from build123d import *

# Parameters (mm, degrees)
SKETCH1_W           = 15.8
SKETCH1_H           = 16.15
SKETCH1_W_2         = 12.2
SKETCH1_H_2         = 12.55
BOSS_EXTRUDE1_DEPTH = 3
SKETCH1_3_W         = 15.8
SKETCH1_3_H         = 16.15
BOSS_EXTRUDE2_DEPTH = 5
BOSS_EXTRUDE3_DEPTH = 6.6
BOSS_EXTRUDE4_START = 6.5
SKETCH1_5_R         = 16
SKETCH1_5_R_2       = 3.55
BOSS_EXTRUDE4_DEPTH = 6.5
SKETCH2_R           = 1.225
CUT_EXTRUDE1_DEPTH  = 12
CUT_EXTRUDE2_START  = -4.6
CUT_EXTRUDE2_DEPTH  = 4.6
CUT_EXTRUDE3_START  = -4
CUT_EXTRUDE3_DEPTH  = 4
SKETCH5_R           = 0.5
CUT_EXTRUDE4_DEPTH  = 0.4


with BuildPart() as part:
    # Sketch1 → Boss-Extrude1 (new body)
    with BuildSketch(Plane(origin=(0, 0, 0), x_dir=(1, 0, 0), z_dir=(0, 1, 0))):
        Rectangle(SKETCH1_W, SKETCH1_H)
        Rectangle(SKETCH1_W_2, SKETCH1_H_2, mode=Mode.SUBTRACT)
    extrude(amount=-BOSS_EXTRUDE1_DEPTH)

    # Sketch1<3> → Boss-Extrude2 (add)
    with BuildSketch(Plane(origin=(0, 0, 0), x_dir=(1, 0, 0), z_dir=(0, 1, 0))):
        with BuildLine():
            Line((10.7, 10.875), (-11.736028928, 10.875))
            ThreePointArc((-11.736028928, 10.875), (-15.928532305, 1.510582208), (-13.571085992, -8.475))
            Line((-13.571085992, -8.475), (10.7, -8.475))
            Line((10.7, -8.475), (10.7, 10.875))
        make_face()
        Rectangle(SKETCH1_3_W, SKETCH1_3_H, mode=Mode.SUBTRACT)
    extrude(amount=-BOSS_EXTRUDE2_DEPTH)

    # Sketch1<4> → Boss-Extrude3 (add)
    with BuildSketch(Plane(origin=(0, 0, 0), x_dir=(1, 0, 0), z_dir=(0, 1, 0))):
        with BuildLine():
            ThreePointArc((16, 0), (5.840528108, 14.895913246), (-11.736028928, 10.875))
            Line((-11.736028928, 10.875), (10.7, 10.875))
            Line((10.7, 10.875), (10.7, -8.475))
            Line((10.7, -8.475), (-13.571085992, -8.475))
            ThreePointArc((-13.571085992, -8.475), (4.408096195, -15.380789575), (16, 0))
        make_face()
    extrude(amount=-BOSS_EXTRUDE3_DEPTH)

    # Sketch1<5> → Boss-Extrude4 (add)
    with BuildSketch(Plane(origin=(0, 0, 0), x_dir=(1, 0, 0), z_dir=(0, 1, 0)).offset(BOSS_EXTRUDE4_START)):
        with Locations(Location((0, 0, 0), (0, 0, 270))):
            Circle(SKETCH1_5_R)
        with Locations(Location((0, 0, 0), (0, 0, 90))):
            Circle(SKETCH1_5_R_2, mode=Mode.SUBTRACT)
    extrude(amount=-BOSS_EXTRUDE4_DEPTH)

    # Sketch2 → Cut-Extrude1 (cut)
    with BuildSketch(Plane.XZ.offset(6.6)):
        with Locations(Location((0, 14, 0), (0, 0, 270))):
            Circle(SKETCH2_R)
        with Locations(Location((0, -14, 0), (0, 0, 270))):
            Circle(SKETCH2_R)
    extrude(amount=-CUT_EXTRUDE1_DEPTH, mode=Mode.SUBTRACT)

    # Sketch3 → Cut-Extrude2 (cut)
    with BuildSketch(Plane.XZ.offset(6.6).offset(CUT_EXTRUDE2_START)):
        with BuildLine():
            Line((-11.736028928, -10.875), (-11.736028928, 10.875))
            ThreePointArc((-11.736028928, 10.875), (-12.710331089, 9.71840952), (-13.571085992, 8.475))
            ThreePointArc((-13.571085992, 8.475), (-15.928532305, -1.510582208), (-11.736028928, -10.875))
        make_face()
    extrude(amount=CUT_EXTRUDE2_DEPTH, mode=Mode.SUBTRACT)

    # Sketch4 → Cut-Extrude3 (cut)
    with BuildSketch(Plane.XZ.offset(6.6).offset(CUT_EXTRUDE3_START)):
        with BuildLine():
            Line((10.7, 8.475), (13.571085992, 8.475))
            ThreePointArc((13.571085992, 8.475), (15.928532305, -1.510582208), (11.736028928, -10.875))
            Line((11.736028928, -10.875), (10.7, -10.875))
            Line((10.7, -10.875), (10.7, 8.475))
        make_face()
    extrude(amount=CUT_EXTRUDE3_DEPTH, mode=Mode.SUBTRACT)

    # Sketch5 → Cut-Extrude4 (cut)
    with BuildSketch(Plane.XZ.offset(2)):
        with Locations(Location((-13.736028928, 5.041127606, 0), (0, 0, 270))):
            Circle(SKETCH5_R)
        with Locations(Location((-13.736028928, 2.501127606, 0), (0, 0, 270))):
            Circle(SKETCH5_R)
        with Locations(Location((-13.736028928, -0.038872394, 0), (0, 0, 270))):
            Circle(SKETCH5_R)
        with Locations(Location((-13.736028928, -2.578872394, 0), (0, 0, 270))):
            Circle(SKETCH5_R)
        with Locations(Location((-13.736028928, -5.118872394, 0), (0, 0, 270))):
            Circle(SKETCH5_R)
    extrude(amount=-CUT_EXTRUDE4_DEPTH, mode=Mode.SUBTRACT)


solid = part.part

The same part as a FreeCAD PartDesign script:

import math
import FreeCAD as App
import Part
import Sketcher
Q = App.Units.Quantity

doc = App.newDocument("Part")
body = doc.addObject("PartDesign::Body", "Body")

# Sketch on XZ plane
sketch1 = body.newObject("Sketcher::SketchObject", "Sketch")
sketch1.AttachmentSupport = (doc.getObject("XZ_Plane"), [""])
sketch1.MapMode = "FlatFace"
sketch1.addGeometry(Part.LineSegment(App.Vector(-8, -8, 0), App.Vector(-8, 8, 0)), False)
sketch1.addGeometry(Part.LineSegment(App.Vector(-8, 8, 0), App.Vector(8, 8, 0)), False)
sketch1.addGeometry(Part.LineSegment(App.Vector(8, 8, 0), App.Vector(8, -8, 0)), False)
sketch1.addGeometry(Part.LineSegment(App.Vector(8, -8, 0), App.Vector(-8, -8, 0)), False)
sketch1.addGeometry(Part.LineSegment(App.Vector(6, 6, 0), App.Vector(-6, 6, 0)), False)
sketch1.addGeometry(Part.LineSegment(App.Vector(-6, 6, 0), App.Vector(-6, -6, 0)), False)
sketch1.addGeometry(Part.LineSegment(App.Vector(-6, -6, 0), App.Vector(6, -6, 0)), False)
sketch1.addGeometry(Part.LineSegment(App.Vector(6, -6, 0), App.Vector(6, 6, 0)), False)
sketch1.addConstraint(Sketcher.Constraint("Coincident", 0, 2, 1, 1))
sketch1.addConstraint(Sketcher.Constraint("Coincident", 1, 2, 2, 1))
sketch1.addConstraint(Sketcher.Constraint("Coincident", 2, 2, 3, 1))
sketch1.addConstraint(Sketcher.Constraint("Coincident", 3, 2, 0, 1))
sketch1.addConstraint(Sketcher.Constraint("Coincident", 4, 2, 5, 1))
sketch1.addConstraint(Sketcher.Constraint("Coincident", 5, 2, 6, 1))
sketch1.addConstraint(Sketcher.Constraint("Coincident", 6, 2, 7, 1))
sketch1.addConstraint(Sketcher.Constraint("Coincident", 7, 2, 4, 1))
sketch1.addConstraint(Sketcher.Constraint("Vertical", 0))
sketch1.addConstraint(Sketcher.Constraint("Horizontal", 1))
sketch1.addConstraint(Sketcher.Constraint("Vertical", 2))
sketch1.addConstraint(Sketcher.Constraint("Horizontal", 3))
sketch1.addConstraint(Sketcher.Constraint("Horizontal", 4))
sketch1.addConstraint(Sketcher.Constraint("Vertical", 5))
sketch1.addConstraint(Sketcher.Constraint("Horizontal", 6))
sketch1.addConstraint(Sketcher.Constraint("Vertical", 7))
sketch1.addConstraint(Sketcher.Constraint("Symmetric", 0, 2, 2, 2, -1, 1))
sketch1.addConstraint(Sketcher.Constraint("Symmetric", 4, 2, 6, 2, -1, 1))
sketch1.addConstraint(Sketcher.Constraint("DistanceX", 1, 1, 1, 2, Q("15.8 mm")))
sketch1.addConstraint(Sketcher.Constraint("DistanceX", 4, 2, 4, 1, Q("12.2 mm")))
sketch1.addConstraint(Sketcher.Constraint("DistanceY", 0, 1, 0, 2, Q("16.15 mm")))
sketch1.addConstraint(Sketcher.Constraint("DistanceY", 5, 2, 5, 1, Q("12.55 mm")))
pad1 = body.newObject("PartDesign::Pad", "Pad")
pad1.Profile = sketch1
pad1.Length = 3

# Sketch on XZ plane
sketch2 = body.newObject("Sketcher::SketchObject", "Sketch001")
sketch2.AttachmentSupport = (doc.getObject("XZ_Plane"), [""])
sketch2.MapMode = "FlatFace"
sketch2.addGeometry(Part.LineSegment(App.Vector(11, -11, 0), App.Vector(-12, -11, 0)), False)
sketch2.addGeometry(Part.ArcOfCircle(Part.Circle(App.Vector(0, 0, 0), App.Vector(0, 0, 1), 16), math.radians(148), math.radians(223)), False)
sketch2.addGeometry(Part.LineSegment(App.Vector(-14, 8, 0), App.Vector(11, 8, 0)), False)
sketch2.addGeometry(Part.LineSegment(App.Vector(11, 8, 0), App.Vector(11, -11, 0)), False)
sketch2.addGeometry(Part.LineSegment(App.Vector(8, 8, 0), App.Vector(-8, 8, 0)), False)
sketch2.addGeometry(Part.LineSegment(App.Vector(-8, 8, 0), App.Vector(-8, -8, 0)), False)
sketch2.addGeometry(Part.LineSegment(App.Vector(-8, -8, 0), App.Vector(8, -8, 0)), False)
sketch2.addGeometry(Part.LineSegment(App.Vector(8, -8, 0), App.Vector(8, 8, 0)), False)
sketch2.addConstraint(Sketcher.Constraint("Coincident", 0, 2, 1, 2))
sketch2.addConstraint(Sketcher.Constraint("Coincident", 1, 1, 2, 1))
sketch2.addConstraint(Sketcher.Constraint("Coincident", 2, 2, 3, 1))
sketch2.addConstraint(Sketcher.Constraint("Coincident", 3, 2, 0, 1))
sketch2.addConstraint(Sketcher.Constraint("Coincident", 4, 2, 5, 1))
sketch2.addConstraint(Sketcher.Constraint("Coincident", 5, 2, 6, 1))
sketch2.addConstraint(Sketcher.Constraint("Coincident", 6, 2, 7, 1))
sketch2.addConstraint(Sketcher.Constraint("Coincident", 7, 2, 4, 1))
sketch2.addConstraint(Sketcher.Constraint("Horizontal", 0))
sketch2.addConstraint(Sketcher.Constraint("Horizontal", 2))
sketch2.addConstraint(Sketcher.Constraint("Vertical", 3))
sketch2.addConstraint(Sketcher.Constraint("Horizontal", 4))
sketch2.addConstraint(Sketcher.Constraint("Vertical", 5))
sketch2.addConstraint(Sketcher.Constraint("Horizontal", 6))
sketch2.addConstraint(Sketcher.Constraint("Vertical", 7))
sketch2.addConstraint(Sketcher.Constraint("Coincident", 1, 3, -1, 1))
sketch2.addConstraint(Sketcher.Constraint("Symmetric", 4, 2, 6, 2, -1, 1))
sketch2.addConstraint(Sketcher.Constraint("Radius", 1, Q("16 mm")))
sketch2.addConstraint(Sketcher.Constraint("DistanceX", 4, 2, 4, 1, Q("15.8 mm")))
sketch2.addConstraint(Sketcher.Constraint("DistanceY", 3, 2, 3, 1, Q("19.35 mm")))
sketch2.addConstraint(Sketcher.Constraint("DistanceY", 5, 2, 5, 1, Q("16.15 mm")))
sketch2.addConstraint(Sketcher.Constraint("DistanceX", -1, 1, 2, 2, Q("10.7 mm")))
sketch2.addConstraint(Sketcher.Constraint("DistanceY", 4, 2, 1, 1, Q("0.4 mm")))
pad2 = body.newObject("PartDesign::Pad", "Pad001")
pad2.Profile = sketch2
pad2.Length = 5

# Sketch on XZ plane
sketch3 = body.newObject("Sketcher::SketchObject", "Sketch002")
sketch3.AttachmentSupport = (doc.getObject("XZ_Plane"), [""])
sketch3.MapMode = "FlatFace"
sketch3.addGeometry(Part.ArcOfCircle(Part.Circle(App.Vector(0, 0, 0), App.Vector(0, 0, 1), 16), math.radians(-137), math.radians(0)), False)
sketch3.addGeometry(Part.LineSegment(App.Vector(-12, -11, 0), App.Vector(11, -11, 0)), False)
sketch3.addGeometry(Part.LineSegment(App.Vector(11, -11, 0), App.Vector(11, 8, 0)), False)
sketch3.addGeometry(Part.LineSegment(App.Vector(11, 8, 0), App.Vector(-14, 8, 0)), False)
sketch3.addGeometry(Part.ArcOfCircle(Part.Circle(App.Vector(0, 0, 0), App.Vector(0, 0, 1), 16), math.radians(0), math.radians(148)), False)
sketch3.addConstraint(Sketcher.Constraint("Coincident", 0, 1, 1, 1))
sketch3.addConstraint(Sketcher.Constraint("Coincident", 1, 2, 2, 1))
sketch3.addConstraint(Sketcher.Constraint("Coincident", 2, 2, 3, 1))
sketch3.addConstraint(Sketcher.Constraint("Coincident", 3, 2, 4, 2))
sketch3.addConstraint(Sketcher.Constraint("Tangent", 4, 1, 0, 2))
sketch3.addConstraint(Sketcher.Constraint("Horizontal", 1))
sketch3.addConstraint(Sketcher.Constraint("Vertical", 2))
sketch3.addConstraint(Sketcher.Constraint("Horizontal", 3))
sketch3.addConstraint(Sketcher.Constraint("Coincident", 0, 3, -1, 1))
sketch3.addConstraint(Sketcher.Constraint("Equal", 0, 4))
sketch3.addConstraint(Sketcher.Constraint("PointOnObject", 4, 1, -1))
sketch3.addConstraint(Sketcher.Constraint("Radius", 0, Q("16 mm")))
sketch3.addConstraint(Sketcher.Constraint("DistanceY", 2, 1, 2, 2, Q("19.35 mm")))
sketch3.addConstraint(Sketcher.Constraint("DistanceX", -1, 1, 1, 2, Q("10.7 mm")))
sketch3.addConstraint(Sketcher.Constraint("DistanceY", 0, 1, -1, 1, Q("10.875 mm")))
pad3 = body.newObject("PartDesign::Pad", "Pad002")
pad3.Profile = sketch3
pad3.Length = 6.6

# Sketch on XZ plane
sketch4 = body.newObject("Sketcher::SketchObject", "Sketch003")
sketch4.AttachmentSupport = (doc.getObject("XZ_Plane"), [""])
sketch4.MapMode = "FlatFace"
sketch4.AttachmentOffset = App.Placement(App.Vector(0, 0, -6.5), App.Rotation())
sketch4.addGeometry(Part.Circle(App.Vector(0, 0, 0), App.Vector(0, 0, 1), 16), False)
sketch4.addGeometry(Part.Circle(App.Vector(0, 0, 0), App.Vector(0, 0, 1), 3.5), False)
sketch4.addConstraint(Sketcher.Constraint("Coincident", 0, 3, -1, 1))
sketch4.addConstraint(Sketcher.Constraint("Coincident", 1, 3, -1, 1))
sketch4.addConstraint(Sketcher.Constraint("Diameter", 0, Q("32 mm")))
sketch4.addConstraint(Sketcher.Constraint("Diameter", 1, Q("7.1 mm")))
pad4 = body.newObject("PartDesign::Pad", "Pad003")
pad4.Profile = sketch4
pad4.Length = 6.5

# Sketch on XZ plane
sketch5 = body.newObject("Sketcher::SketchObject", "Sketch004")
sketch5.AttachmentSupport = (doc.getObject("XZ_Plane"), [""])
sketch5.MapMode = "FlatFace"
sketch5.AttachmentOffset = App.Placement(App.Vector(0, 0, 6.6), App.Rotation())
sketch5.addGeometry(Part.Circle(App.Vector(0, 14, 0), App.Vector(0, 0, 1), 1.2), False)
sketch5.addGeometry(Part.Circle(App.Vector(0, -14, 0), App.Vector(0, 0, 1), 1.2), False)
sketch5.addConstraint(Sketcher.Constraint("Equal", 0, 1))
sketch5.addConstraint(Sketcher.Constraint("Symmetric", 0, 3, 1, 3, -1, 1))
sketch5.addConstraint(Sketcher.Constraint("PointOnObject", 0, 3, -2))
sketch5.addConstraint(Sketcher.Constraint("Diameter", 0, Q("2.45 mm")))
sketch5.addConstraint(Sketcher.Constraint("DistanceY", -1, 1, 0, 3, Q("14 mm")))
pocket1 = body.newObject("PartDesign::Pocket", "Pocket")
pocket1.Profile = sketch5
pocket1.Length = 12

# Sketch on XZ plane
sketch6 = body.newObject("Sketcher::SketchObject", "Sketch005")
sketch6.AttachmentSupport = (doc.getObject("XZ_Plane"), [""])
sketch6.MapMode = "FlatFace"
sketch6.AttachmentOffset = App.Placement(App.Vector(0, 0, 2), App.Rotation())
sketch6.addGeometry(Part.LineSegment(App.Vector(-11.7, -10.9, 0), App.Vector(-11.7, 10.9, 0)), False)
sketch6.addGeometry(Part.ArcOfCircle(Part.Circle(App.Vector(0, 0, 0), App.Vector(0, 0, 1), 16), math.radians(137.18), math.radians(148.02)), False)
sketch6.addGeometry(Part.ArcOfCircle(Part.Circle(App.Vector(0, 0, 0), App.Vector(0, 0, 1), 16), math.radians(148), math.radians(223)), False)
sketch6.addConstraint(Sketcher.Constraint("Coincident", 0, 2, 1, 1))
sketch6.addConstraint(Sketcher.Constraint("Tangent", 1, 2, 2, 1))
sketch6.addConstraint(Sketcher.Constraint("Coincident", 2, 2, 0, 1))
sketch6.addConstraint(Sketcher.Constraint("Vertical", 0))
sketch6.addConstraint(Sketcher.Constraint("Coincident", 1, 3, -1, 1))
sketch6.addConstraint(Sketcher.Constraint("Equal", 1, 2))
sketch6.addConstraint(Sketcher.Constraint("Radius", 1, Q("16 mm")))
sketch6.addConstraint(Sketcher.Constraint("DistanceY", 0, 1, 0, 2, Q("21.75 mm")))
sketch6.addConstraint(Sketcher.Constraint("DistanceY", 1, 2, 0, 2, Q("2.4 mm")))
pocket2 = body.newObject("PartDesign::Pocket", "Pocket001")
pocket2.Profile = sketch6
pocket2.Length = 4.6
pocket2.Reversed = True

# Sketch on XZ plane
sketch7 = body.newObject("Sketcher::SketchObject", "Sketch006")
sketch7.AttachmentSupport = (doc.getObject("XZ_Plane"), [""])
sketch7.MapMode = "FlatFace"
sketch7.AttachmentOffset = App.Placement(App.Vector(0, 0, 2.6), App.Rotation())
sketch7.addGeometry(Part.LineSegment(App.Vector(13.6, 8.5, 0), App.Vector(10.7, 8.5, 0)), False)
sketch7.addGeometry(Part.LineSegment(App.Vector(10.7, 8.5, 0), App.Vector(10.7, -10.9, 0)), False)
sketch7.addGeometry(Part.LineSegment(App.Vector(10.7, -10.9, 0), App.Vector(11.7, -10.9, 0)), False)
sketch7.addGeometry(Part.ArcOfCircle(Part.Circle(App.Vector(0, 0, 0), App.Vector(0, 0, 1), 16), math.radians(-43), math.radians(32)), False)
sketch7.addConstraint(Sketcher.Constraint("Coincident", 0, 2, 1, 1))
sketch7.addConstraint(Sketcher.Constraint("Coincident", 1, 2, 2, 1))
sketch7.addConstraint(Sketcher.Constraint("Coincident", 2, 2, 3, 1))
sketch7.addConstraint(Sketcher.Constraint("Coincident", 3, 2, 0, 1))
sketch7.addConstraint(Sketcher.Constraint("Horizontal", 0))
sketch7.addConstraint(Sketcher.Constraint("Vertical", 1))
sketch7.addConstraint(Sketcher.Constraint("Horizontal", 2))
sketch7.addConstraint(Sketcher.Constraint("Coincident", 3, 3, -1, 1))
sketch7.addConstraint(Sketcher.Constraint("Radius", 3, Q("16 mm")))
sketch7.addConstraint(Sketcher.Constraint("DistanceY", 1, 2, 1, 1, Q("19.35 mm")))
sketch7.addConstraint(Sketcher.Constraint("DistanceX", -1, 1, 0, 2, Q("10.7 mm")))
sketch7.addConstraint(Sketcher.Constraint("DistanceY", -1, 1, 0, 2, Q("8.475 mm")))
pocket3 = body.newObject("PartDesign::Pocket", "Pocket002")
pocket3.Profile = sketch7
pocket3.Length = 4
pocket3.Reversed = True

# Sketch on XZ plane
sketch8 = body.newObject("Sketcher::SketchObject", "Sketch007")
sketch8.AttachmentSupport = (doc.getObject("XZ_Plane"), [""])
sketch8.MapMode = "FlatFace"
sketch8.AttachmentOffset = App.Placement(App.Vector(0, 0, 2), App.Rotation())
sketch8.addGeometry(Part.Circle(App.Vector(-13.7, 5, 0), App.Vector(0, 0, 1), 0.5), False)
sketch8.addGeometry(Part.Circle(App.Vector(-13.7, 2.5, 0), App.Vector(0, 0, 1), 0.5), False)
sketch8.addGeometry(Part.Circle(App.Vector(-13.7, 0, 0), App.Vector(0, 0, 1), 0.5), False)
sketch8.addGeometry(Part.Circle(App.Vector(-13.7, -2.6, 0), App.Vector(0, 0, 1), 0.5), False)
sketch8.addGeometry(Part.Circle(App.Vector(-13.7, -5.1, 0), App.Vector(0, 0, 1), 0.5), False)
sketch8.addConstraint(Sketcher.Constraint("Equal", 0, 1))
sketch8.addConstraint(Sketcher.Constraint("Equal", 1, 2))
sketch8.addConstraint(Sketcher.Constraint("Equal", 2, 3))
sketch8.addConstraint(Sketcher.Constraint("Equal", 3, 4))
sketch8.addConstraint(Sketcher.Constraint("Vertical", 0, 3, 1, 3))
sketch8.addConstraint(Sketcher.Constraint("Vertical", 1, 3, 2, 3))
sketch8.addConstraint(Sketcher.Constraint("Vertical", 2, 3, 3, 3))
sketch8.addConstraint(Sketcher.Constraint("Vertical", 3, 3, 4, 3))
sketch8.addConstraint(Sketcher.Constraint("Diameter", 0, Q("1 mm")))
sketch8.addConstraint(Sketcher.Constraint("DistanceY", 1, 3, 0, 3, Q("2.54 mm")))
sketch8.addConstraint(Sketcher.Constraint("DistanceY", 2, 3, 1, 3, Q("2.54 mm")))
sketch8.addConstraint(Sketcher.Constraint("DistanceY", 3, 3, 2, 3, Q("2.54 mm")))
sketch8.addConstraint(Sketcher.Constraint("DistanceY", 4, 3, 3, 3, Q("2.54 mm")))
sketch8.addConstraint(Sketcher.Constraint("DistanceX", 0, 3, -1, 1, Q("13.736029 mm")))
sketch8.addConstraint(Sketcher.Constraint("DistanceY", -1, 1, 0, 3, Q("5.041128 mm")))
pocket4 = body.newObject("PartDesign::Pocket", "Pocket003")
pocket4.Profile = sketch8
pocket4.Length = 0.4

doc.recompute()
